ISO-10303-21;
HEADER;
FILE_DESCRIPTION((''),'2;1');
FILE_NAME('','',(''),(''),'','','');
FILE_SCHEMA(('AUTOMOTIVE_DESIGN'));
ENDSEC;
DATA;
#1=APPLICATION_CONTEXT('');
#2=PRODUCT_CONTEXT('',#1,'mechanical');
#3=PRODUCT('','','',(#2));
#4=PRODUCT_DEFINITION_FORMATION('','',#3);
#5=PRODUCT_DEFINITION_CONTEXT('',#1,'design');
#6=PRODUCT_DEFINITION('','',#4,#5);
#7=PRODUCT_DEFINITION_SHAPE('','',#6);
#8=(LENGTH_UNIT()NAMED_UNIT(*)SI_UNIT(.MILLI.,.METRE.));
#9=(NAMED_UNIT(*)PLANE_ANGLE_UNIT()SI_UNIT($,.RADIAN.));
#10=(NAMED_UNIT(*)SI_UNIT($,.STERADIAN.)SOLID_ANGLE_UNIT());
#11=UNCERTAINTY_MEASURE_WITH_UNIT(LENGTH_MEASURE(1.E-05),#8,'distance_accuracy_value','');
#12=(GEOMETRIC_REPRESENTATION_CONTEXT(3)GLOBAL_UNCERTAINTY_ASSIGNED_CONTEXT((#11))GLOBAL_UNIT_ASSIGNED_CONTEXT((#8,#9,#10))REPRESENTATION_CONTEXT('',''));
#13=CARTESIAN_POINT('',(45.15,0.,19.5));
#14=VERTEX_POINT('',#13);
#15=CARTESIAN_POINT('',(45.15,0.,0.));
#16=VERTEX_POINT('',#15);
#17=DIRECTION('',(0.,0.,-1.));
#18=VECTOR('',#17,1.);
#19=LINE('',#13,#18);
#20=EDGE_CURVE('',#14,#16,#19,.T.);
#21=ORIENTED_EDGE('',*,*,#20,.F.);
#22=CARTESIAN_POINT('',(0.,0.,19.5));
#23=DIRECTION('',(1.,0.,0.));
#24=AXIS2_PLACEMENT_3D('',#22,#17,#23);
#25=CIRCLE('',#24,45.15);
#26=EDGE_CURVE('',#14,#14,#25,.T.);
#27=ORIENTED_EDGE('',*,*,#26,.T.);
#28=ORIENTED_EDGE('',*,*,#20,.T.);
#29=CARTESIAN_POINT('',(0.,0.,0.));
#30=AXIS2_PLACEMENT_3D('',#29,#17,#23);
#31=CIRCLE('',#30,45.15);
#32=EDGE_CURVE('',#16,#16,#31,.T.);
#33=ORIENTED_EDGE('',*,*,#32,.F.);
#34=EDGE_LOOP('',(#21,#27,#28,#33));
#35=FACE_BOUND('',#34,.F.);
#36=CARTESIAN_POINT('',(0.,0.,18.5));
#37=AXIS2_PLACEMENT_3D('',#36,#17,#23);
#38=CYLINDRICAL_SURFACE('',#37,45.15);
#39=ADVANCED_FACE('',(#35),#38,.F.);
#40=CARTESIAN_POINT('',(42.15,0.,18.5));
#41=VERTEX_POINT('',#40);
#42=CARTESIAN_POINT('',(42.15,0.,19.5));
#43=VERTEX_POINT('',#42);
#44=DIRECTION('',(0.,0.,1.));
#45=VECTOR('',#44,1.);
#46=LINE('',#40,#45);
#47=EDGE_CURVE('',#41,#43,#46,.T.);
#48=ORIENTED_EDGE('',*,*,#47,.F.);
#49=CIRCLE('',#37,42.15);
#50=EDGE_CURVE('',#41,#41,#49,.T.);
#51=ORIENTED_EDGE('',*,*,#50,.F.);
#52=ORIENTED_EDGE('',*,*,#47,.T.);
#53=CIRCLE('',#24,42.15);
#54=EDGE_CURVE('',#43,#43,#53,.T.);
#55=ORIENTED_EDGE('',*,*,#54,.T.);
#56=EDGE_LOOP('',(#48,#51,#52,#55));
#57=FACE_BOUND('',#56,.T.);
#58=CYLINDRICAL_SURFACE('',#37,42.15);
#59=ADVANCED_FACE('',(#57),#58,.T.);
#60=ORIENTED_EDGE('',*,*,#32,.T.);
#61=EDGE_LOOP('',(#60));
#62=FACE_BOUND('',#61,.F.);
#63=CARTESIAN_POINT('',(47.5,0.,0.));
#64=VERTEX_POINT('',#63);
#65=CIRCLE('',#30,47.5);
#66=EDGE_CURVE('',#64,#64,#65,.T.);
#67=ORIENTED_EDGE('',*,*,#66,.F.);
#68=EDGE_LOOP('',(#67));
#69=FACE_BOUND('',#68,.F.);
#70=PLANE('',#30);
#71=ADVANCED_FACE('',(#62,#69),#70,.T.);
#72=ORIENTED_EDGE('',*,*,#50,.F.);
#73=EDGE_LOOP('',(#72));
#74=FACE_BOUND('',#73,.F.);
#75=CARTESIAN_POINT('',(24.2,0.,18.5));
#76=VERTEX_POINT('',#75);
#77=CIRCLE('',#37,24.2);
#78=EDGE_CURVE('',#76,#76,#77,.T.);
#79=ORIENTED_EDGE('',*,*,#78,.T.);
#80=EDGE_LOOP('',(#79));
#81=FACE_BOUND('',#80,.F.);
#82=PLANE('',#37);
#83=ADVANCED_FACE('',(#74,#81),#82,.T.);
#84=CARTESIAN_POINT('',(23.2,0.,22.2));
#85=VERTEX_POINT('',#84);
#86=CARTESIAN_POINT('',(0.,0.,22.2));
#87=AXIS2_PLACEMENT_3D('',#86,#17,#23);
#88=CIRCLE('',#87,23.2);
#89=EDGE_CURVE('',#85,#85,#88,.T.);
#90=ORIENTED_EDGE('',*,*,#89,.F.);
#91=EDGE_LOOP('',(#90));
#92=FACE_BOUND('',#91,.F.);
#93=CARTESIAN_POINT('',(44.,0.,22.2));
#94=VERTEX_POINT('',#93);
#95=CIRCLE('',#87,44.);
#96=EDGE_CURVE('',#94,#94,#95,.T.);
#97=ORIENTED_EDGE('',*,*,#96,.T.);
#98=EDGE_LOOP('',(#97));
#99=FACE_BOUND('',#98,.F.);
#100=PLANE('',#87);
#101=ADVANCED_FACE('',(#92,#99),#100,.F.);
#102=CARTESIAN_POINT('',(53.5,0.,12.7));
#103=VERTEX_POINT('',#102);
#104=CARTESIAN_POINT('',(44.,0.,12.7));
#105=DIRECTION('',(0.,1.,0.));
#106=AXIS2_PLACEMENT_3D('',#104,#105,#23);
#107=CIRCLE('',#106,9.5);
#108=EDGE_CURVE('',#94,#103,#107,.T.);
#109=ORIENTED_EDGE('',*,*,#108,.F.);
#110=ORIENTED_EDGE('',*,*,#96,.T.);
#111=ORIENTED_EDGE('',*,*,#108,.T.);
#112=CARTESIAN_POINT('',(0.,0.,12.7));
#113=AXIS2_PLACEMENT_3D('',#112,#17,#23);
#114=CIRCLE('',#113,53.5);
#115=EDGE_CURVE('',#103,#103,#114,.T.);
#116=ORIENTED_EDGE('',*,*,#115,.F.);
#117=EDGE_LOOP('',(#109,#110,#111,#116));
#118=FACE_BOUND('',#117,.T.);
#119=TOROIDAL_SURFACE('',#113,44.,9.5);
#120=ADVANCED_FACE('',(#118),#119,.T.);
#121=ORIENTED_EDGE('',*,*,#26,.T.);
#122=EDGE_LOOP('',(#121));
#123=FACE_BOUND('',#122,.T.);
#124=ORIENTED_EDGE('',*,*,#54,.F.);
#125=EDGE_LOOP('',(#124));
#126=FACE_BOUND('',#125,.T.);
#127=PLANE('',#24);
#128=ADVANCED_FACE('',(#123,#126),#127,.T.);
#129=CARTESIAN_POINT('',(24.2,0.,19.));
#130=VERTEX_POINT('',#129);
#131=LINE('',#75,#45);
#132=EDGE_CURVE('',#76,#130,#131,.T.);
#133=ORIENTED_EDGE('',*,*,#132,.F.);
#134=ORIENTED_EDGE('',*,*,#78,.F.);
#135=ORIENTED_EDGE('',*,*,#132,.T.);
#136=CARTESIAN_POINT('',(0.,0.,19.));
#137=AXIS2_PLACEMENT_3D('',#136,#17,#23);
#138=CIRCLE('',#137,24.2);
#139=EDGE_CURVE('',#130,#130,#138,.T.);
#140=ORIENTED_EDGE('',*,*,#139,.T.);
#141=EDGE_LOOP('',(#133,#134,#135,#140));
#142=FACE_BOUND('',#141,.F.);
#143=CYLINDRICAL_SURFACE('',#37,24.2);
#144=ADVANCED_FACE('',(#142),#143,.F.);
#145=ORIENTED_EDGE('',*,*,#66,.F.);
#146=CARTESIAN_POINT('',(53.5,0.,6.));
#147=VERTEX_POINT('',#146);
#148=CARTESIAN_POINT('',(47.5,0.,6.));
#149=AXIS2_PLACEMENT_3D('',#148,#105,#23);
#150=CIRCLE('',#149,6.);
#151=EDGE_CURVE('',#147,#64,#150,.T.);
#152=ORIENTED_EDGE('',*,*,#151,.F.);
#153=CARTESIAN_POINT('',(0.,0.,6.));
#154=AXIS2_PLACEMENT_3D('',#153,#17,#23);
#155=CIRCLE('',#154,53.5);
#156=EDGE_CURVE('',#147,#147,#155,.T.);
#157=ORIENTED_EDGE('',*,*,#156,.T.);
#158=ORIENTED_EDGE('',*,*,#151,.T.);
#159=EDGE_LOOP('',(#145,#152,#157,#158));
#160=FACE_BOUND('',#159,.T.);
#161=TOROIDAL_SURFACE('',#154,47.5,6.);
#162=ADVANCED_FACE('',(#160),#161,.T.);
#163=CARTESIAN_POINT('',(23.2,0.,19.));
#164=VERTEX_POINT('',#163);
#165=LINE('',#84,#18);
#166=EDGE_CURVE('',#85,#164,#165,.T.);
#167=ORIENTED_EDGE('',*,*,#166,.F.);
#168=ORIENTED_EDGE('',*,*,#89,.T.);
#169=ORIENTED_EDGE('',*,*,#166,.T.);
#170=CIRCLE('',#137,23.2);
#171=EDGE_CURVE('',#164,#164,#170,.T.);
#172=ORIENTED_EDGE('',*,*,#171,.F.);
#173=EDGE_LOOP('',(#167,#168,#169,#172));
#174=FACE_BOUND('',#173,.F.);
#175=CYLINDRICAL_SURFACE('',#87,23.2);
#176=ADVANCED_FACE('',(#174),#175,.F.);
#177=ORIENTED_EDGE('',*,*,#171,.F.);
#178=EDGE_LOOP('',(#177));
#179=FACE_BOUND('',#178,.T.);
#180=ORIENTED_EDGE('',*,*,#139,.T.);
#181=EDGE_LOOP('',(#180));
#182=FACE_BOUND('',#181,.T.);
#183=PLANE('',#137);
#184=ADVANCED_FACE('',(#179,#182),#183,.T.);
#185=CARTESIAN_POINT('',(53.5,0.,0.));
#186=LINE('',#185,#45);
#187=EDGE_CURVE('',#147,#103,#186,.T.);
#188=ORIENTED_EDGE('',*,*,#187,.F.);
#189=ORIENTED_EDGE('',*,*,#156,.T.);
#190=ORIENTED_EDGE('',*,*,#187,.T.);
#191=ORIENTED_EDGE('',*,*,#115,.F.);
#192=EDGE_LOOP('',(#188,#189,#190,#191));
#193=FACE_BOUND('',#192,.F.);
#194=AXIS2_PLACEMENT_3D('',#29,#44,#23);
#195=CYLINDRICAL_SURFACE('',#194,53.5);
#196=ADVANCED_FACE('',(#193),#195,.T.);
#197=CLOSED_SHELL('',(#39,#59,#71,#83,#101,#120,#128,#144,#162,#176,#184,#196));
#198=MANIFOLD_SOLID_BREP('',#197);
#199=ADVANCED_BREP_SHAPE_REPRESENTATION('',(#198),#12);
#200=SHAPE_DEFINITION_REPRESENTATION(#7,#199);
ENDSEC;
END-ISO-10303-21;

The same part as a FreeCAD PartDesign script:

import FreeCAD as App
import Part
import Sketcher
from FreeCAD import Vector
Q = App.Units.Quantity


def edges_at(feature, points):
    """Names of the edges that pass closest to the given points."""
    edges = feature.Shape.Edges
    near = lambda p: min(range(len(edges)), key=lambda i: edges[i].distToShape(Part.Vertex(*p))[0])
    return sorted({f"Edge{near(p) + 1}" for p in points})

doc = App.newDocument("Part")
body = doc.addObject("PartDesign::Body", "Body")

# Sketch on XZ plane
sketch1 = doc.addObject("Sketcher::SketchObject", "Sketch")
body.addObject(sketch1)
sketch1.AttachmentSupport = (doc.XZ_Plane, [""])
sketch1.MapMode = "FlatFace"
sketch1.addGeometry([
    Part.LineSegment(Vector(53.5, 22.2, 0), Vector(23.2, 22.2, 0)),  # 0
    Part.LineSegment(Vector(23.2, 22.2, 0), Vector(23.2, 18.5, 0)),  # 1
    Part.LineSegment(Vector(23.2, 18.5, 0), Vector(45.1, 18.5, 0)),  # 2
    Part.LineSegment(Vector(45.1, 18.5, 0), Vector(45.1, 0, 0)),  # 3
    Part.LineSegment(Vector(45.1, 0, 0), Vector(53.5, 0, 0)),  # 4
    Part.LineSegment(Vector(53.5, 0, 0), Vector(53.5, 22.2, 0)),  # 5
], False)
sketch1.addConstraint([
    Sketcher.Constraint("Coincident", 0, 2, 1, 1),
    Sketcher.Constraint("Coincident", 1, 2, 2, 1),
    Sketcher.Constraint("Coincident", 2, 2, 3, 1),
    Sketcher.Constraint("Coincident", 3, 2, 4, 1),
    Sketcher.Constraint("Coincident", 4, 2, 5, 1),
    Sketcher.Constraint("Coincident", 5, 2, 0, 1),
    Sketcher.Constraint("Horizontal", 0),
    Sketcher.Constraint("Vertical", 1),
    Sketcher.Constraint("Horizontal", 2),
    Sketcher.Constraint("Vertical", 3),
    Sketcher.Constraint("Horizontal", 4),
    Sketcher.Constraint("Vertical", 5),
    Sketcher.Constraint("PointOnObject", 3, 2, -1),
    Sketcher.Constraint("DistanceX", 0, 2, 0, 1, Q("30.3 mm")),
    Sketcher.Constraint("DistanceY", 1, 2, 1, 1, Q("3.7 mm")),
    Sketcher.Constraint("DistanceY", 3, 2, 3, 1, Q("18.5 mm")),
    Sketcher.Constraint("DistanceX", 2, 1, 2, 2, Q("21.95 mm")),
    Sketcher.Constraint("DistanceX", -1, 1, 0, 2, Q("23.2 mm")),
])
revolution = doc.addObject("PartDesign::Revolution", "Revolution")
body.addObject(revolution)
revolution.Profile = sketch1
revolution.ReferenceAxis = (sketch1, ["V_Axis"])
revolution.Angle = 360
doc.recompute()

fillet = doc.addObject("PartDesign::Fillet", "Fillet")
body.addObject(fillet)
fillet.Base = (revolution, edges_at(revolution, [(-53.5, 0, 22.2)]))
fillet.Radius = 9.5
doc.recompute()

fillet2 = doc.addObject("PartDesign::Fillet", "Fillet001")
body.addObject(fillet2)
fillet2.Base = (fillet, edges_at(fillet, [(-53.5, 0, 0)]))
fillet2.Radius = 6

# Sketch on XY plane
sketch2 = doc.addObject("Sketcher::SketchObject", "Sketch001")
body.addObject(sketch2)
sketch2.AttachmentSupport = (doc.XY_Plane, [""])
sketch2.MapMode = "FlatFace"
sketch2.AttachmentOffset = App.Placement(Vector(0, 0, 18.5), App.Rotation())
sketch2.addGeometry([
    Part.Circle(Vector(0, 0, 0), Vector(0, 0, 1), 45),
    Part.Circle(Vector(0, 0, 0), Vector(0, 0, 1), 42),
], False)
sketch2.addConstraint([
    Sketcher.Constraint("Coincident", 0, 3, -1, 1),
    Sketcher.Constraint("Coincident", 1, 3, -1, 1),
    Sketcher.Constraint("Diameter", 0, Q("90.3 mm")),
    Sketcher.Constraint("Diameter", 1, Q("84.3 mm")),
])
pocket1 = doc.addObject("PartDesign::Pocket", "Pocket")
body.addObject(pocket1)
pocket1.Profile = sketch2
pocket1.Length = 1
pocket1.Reversed = True

# Sketch on XY plane
sketch3 = doc.addObject("Sketcher::SketchObject", "Sketch002")
body.addObject(sketch3)
sketch3.AttachmentSupport = (doc.XY_Plane, [""])
sketch3.MapMode = "FlatFace"
sketch3.AttachmentOffset = App.Placement(Vector(0, 0, 18.5), App.Rotation())
sketch3.addGeometry([
    Part.Circle(Vector(0, 0, 0), Vector(0, 0, 1), 24),
    Part.Circle(Vector(0, 0, 0), Vector(0, 0, 1), 23),
], False)
sketch3.addConstraint([
    Sketcher.Constraint("Coincident", 0, 3, -1, 1),
    Sketcher.Constraint("Coincident", 1, 3, -1, 1),
    Sketcher.Constraint("Diameter", 0, Q("48.4 mm")),
    Sketcher.Constraint("Diameter", 1, Q("46.4 mm")),
])
pocket2 = doc.addObject("PartDesign::Pocket", "Pocket001")
body.addObject(pocket2)
pocket2.Profile = sketch3
pocket2.Length = 0.5
pocket2.Reversed = True

doc.recompute()
